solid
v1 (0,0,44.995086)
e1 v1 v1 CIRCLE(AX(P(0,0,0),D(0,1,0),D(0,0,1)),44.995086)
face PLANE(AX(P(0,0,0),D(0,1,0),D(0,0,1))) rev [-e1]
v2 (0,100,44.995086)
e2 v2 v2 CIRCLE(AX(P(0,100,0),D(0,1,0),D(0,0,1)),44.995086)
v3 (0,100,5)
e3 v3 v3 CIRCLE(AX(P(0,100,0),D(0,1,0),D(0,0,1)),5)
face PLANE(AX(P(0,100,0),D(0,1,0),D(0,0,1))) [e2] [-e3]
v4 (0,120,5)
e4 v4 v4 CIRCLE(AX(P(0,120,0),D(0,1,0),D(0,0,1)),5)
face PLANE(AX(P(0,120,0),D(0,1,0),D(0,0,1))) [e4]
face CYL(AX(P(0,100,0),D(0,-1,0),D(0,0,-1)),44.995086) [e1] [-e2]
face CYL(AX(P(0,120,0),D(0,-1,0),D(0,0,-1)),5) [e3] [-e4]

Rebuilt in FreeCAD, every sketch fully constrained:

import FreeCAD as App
import Part
import Sketcher

V = App.Vector

doc = App.newDocument("Part")
params = doc.addObject("Spreadsheet::Sheet", "Params")
for row, (alias, value) in enumerate([
    ("pad1_length", "100 mm"),
    ("sketch2_diameter", "10 mm"),
    ("pad2_length", "20 mm"),
], start=1):
    params.set(f"A{row}", alias)
    params.set(f"B{row}", "=" + value)
    params.setAlias(f"B{row}", alias)

body = doc.addObject("PartDesign::Body", "Body")

# Sketch on XZ plane
sketch1 = body.newObject("Sketcher::SketchObject", "Sketch")
sketch1.AttachmentSupport = (doc.getObject("XZ_Plane"), [""])
sketch1.MapMode = "FlatFace"
sketch1.addGeometry(Part.Circle(V(0, 0, 0), V(0, 0, 1), 45), False)
sketch1.addConstraint(Sketcher.Constraint("Coincident", 0, 3, -1, 1))
sketch1.addConstraint(Sketcher.Constraint("Diameter", 0, 89.990171))
pad1 = body.newObject("PartDesign::Pad", "Pad")
pad1.Profile = sketch1
pad1.setExpression("Length", "Params.pad1_length")
pad1.Reversed = True

# Sketch on XZ plane
sketch2 = body.newObject("Sketcher::SketchObject", "Sketch001")
sketch2.AttachmentSupport = (doc.getObject("XZ_Plane"), [""])
sketch2.MapMode = "FlatFace"
sketch2.AttachmentOffset = App.Placement(V(0, 0, -100), App.Rotation())
sketch2.addGeometry(Part.Circle(V(0, 0, 0), V(0, 0, 1), 5), False)
sketch2.addConstraint(Sketcher.Constraint("Coincident", 0, 3, -1, 1))
sketch2.addConstraint(Sketcher.Constraint("Diameter", 0, 10.0))
sketch2.setExpression("Constraints[1]", "Params.sketch2_diameter")
pad2 = body.newObject("PartDesign::Pad", "Pad001")
pad2.Profile = sketch2
pad2.setExpression("Length", "Params.pad2_length")
pad2.Reversed = True

doc.recompute()
